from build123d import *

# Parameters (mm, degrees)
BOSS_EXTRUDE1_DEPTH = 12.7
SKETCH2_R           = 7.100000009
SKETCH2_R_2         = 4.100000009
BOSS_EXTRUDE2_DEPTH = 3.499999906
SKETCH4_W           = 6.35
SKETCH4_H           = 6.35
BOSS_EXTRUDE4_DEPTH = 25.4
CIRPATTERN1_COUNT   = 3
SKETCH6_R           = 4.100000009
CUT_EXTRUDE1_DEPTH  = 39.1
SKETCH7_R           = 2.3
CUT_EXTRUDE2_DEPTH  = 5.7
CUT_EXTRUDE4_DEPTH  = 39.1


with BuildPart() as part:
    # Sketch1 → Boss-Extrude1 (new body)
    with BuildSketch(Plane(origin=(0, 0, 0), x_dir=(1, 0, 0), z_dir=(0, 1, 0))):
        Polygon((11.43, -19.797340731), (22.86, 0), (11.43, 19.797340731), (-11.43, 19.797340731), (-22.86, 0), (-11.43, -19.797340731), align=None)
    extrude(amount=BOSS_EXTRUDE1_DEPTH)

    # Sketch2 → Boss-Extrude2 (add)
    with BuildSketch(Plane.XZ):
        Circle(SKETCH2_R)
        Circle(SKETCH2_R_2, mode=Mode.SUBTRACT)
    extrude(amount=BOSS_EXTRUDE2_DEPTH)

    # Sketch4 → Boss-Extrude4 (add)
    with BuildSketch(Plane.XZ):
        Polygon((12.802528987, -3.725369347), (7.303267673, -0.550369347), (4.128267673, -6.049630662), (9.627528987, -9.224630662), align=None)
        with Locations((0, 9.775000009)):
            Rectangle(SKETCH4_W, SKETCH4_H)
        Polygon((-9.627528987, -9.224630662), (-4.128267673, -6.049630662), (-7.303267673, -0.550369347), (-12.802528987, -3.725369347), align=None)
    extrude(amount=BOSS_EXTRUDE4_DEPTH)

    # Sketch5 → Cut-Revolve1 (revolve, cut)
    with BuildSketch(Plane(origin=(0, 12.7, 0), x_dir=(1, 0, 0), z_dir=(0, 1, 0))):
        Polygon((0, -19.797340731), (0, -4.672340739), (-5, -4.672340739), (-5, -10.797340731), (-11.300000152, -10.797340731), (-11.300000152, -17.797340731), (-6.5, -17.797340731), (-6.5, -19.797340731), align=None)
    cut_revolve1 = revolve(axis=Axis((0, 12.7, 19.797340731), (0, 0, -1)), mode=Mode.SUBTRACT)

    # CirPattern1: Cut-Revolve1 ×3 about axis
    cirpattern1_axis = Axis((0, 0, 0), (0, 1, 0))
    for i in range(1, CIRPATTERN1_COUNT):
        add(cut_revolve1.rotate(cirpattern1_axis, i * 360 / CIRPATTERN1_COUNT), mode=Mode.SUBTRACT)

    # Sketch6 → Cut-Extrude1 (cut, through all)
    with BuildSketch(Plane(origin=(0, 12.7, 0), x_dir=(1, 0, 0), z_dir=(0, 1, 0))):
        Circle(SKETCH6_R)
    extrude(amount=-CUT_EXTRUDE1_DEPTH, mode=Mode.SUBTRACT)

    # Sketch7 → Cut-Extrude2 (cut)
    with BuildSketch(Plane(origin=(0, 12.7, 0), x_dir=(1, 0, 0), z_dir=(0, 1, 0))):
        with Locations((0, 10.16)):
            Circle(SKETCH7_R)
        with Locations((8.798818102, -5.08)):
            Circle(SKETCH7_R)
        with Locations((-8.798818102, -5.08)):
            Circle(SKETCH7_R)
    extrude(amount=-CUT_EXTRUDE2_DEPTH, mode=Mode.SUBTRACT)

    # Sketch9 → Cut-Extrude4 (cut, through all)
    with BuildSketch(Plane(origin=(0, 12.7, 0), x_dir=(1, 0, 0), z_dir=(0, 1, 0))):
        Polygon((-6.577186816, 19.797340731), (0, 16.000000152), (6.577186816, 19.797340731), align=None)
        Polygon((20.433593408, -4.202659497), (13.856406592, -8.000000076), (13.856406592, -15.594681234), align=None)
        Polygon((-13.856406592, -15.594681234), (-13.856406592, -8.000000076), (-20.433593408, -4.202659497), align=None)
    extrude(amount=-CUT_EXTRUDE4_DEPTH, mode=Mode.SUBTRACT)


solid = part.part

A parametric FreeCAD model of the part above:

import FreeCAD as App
import Part
import Sketcher
Q = App.Units.Quantity


def add_polygon(sketch, points):
    """Adds a closed chain of lines whose ends are joined by coincident constraints."""
    first, n = sketch.GeometryCount, len(points)
    for a, b in zip(points, points[1:] + points[:1]):
        sketch.addGeometry(Part.LineSegment(App.Vector(*a, 0), App.Vector(*b, 0)), False)
    for i in range(n):
        sketch.addConstraint(Sketcher.Constraint("Coincident", first + i, 2, first + (i + 1) % n, 1))

doc = App.newDocument("Part")
body = doc.addObject("PartDesign::Body", "Body")

sketch1 = body.newObject("Sketcher::SketchObject", "Sketch")
sketch1.AttachmentSupport = (doc.getObject("XZ_Plane"), [""])
sketch1.MapMode = "FlatFace"
add_polygon(sketch1, [(11, 20), (23, 0), (11, -20), (-11, -20), (-23, 0), (-11, 20)])
sketch1.addConstraint(Sketcher.Constraint("Horizontal", 2))
sketch1.addConstraint(Sketcher.Constraint("Horizontal", 5))
sketch1.addConstraint(Sketcher.Constraint("Symmetric", 0, 2, 3, 2, -1, 1))
sketch1.addConstraint(Sketcher.Constraint("Symmetric", 1, 2, 4, 2, -1, 1))
sketch1.addConstraint(Sketcher.Constraint("PointOnObject", 0, 2, -1))
sketch1.addConstraint(Sketcher.Constraint("Parallel", 0, 3))
sketch1.addConstraint(Sketcher.Constraint("Vertical", 2, 2, 4, 2))
sketch1.addConstraint(Sketcher.Constraint("Angle", 0, Q("-60 deg")))
sketch1.addConstraint(Sketcher.Constraint("DistanceX", 2, 2, 2, 1, 22.86))
sketch1.addConstraint(Sketcher.Constraint("Distance", 0, 22.86))
pad1 = body.newObject("PartDesign::Pad", "Pad")
pad1.Profile = sketch1
pad1.Length = 12.7
pad1.Reversed = True

sketch2 = body.newObject("Sketcher::SketchObject", "Sketch001")
sketch2.AttachmentSupport = (doc.getObject("XZ_Plane"), [""])
sketch2.MapMode = "FlatFace"
sketch2.addGeometry(Part.Circle(App.Vector(0, 0, 0), App.Vector(0, 0, 1), 7.1), False)
sketch2.addGeometry(Part.Circle(App.Vector(0, 0, 0), App.Vector(0, 0, 1), 4.1), False)
sketch2.addConstraint(Sketcher.Constraint("Coincident", 0, 3, -1, 1))
sketch2.addConstraint(Sketcher.Constraint("Coincident", 1, 3, -1, 1))
sketch2.addConstraint(Sketcher.Constraint("Diameter", 0, 14.2))
sketch2.addConstraint(Sketcher.Constraint("Diameter", 1, 8.2))
pad2 = body.newObject("PartDesign::Pad", "Pad001")
pad2.Profile = sketch2
pad2.Length = 3.5

sketch3 = body.newObject("Sketcher::SketchObject", "Sketch002")
sketch3.AttachmentSupport = (doc.getObject("XZ_Plane"), [""])
sketch3.MapMode = "FlatFace"
add_polygon(sketch3, [(13, -4), (7, -1), (4, -6), (10, -9)])
add_polygon(sketch3, [(-3, 13), (-3, 7), (3, 7), (3, 13)])
add_polygon(sketch3, [(-10, -9), (-4, -6), (-7, -1), (-13, -4)])
sketch3.addConstraint(Sketcher.Constraint("Vertical", 4))
sketch3.addConstraint(Sketcher.Constraint("Horizontal", 5))
sketch3.addConstraint(Sketcher.Constraint("Vertical", 6))
sketch3.addConstraint(Sketcher.Constraint("Horizontal", 7))
sketch3.addConstraint(Sketcher.Constraint("Symmetric", 1, 2, 8, 2, -2))
sketch3.addConstraint(Sketcher.Constraint("Symmetric", 0, 2, 9, 2, -2))
sketch3.addConstraint(Sketcher.Constraint("Symmetric", 3, 2, 10, 2, -2))
sketch3.addConstraint(Sketcher.Constraint("Symmetric", 2, 2, 11, 2, -2))
sketch3.addConstraint(Sketcher.Constraint("Perpendicular", 0, 1))
sketch3.addConstraint(Sketcher.Constraint("Perpendicular", 1, 2))
sketch3.addConstraint(Sketcher.Constraint("Perpendicular", 2, 3))
sketch3.addConstraint(Sketcher.Constraint("Equal", 7, 4))
sketch3.addConstraint(Sketcher.Constraint("Equal", 0, 1))
sketch3.addConstraint(Sketcher.Constraint("Angle", 0, Q("150 deg")))
sketch3.addConstraint(Sketcher.Constraint("DistanceX", 5, 1, 5, 2, 6.35))
sketch3.addConstraint(Sketcher.Constraint("DistanceY", -1, 1, 4, 2, 6.6))
sketch3.addConstraint(Sketcher.Constraint("Distance", 0, 6.35))
sketch3.addConstraint(Sketcher.Constraint("DistanceX", 4, 2, -1, 1, 3.175))
sketch3.addConstraint(Sketcher.Constraint("DistanceY", 0, 2, -1, 1, 0.550369))
sketch3.addConstraint(Sketcher.Constraint("DistanceX", -1, 1, 2, 2, 9.627529))
pad3 = body.newObject("PartDesign::Pad", "Pad002")
pad3.Profile = sketch3
pad3.Length = 25.4

sketch4 = body.newObject("Sketcher::SketchObject", "Sketch003")
sketch4.AttachmentSupport = (doc.getObject("XZ_Plane"), [""])
sketch4.MapMode = "FlatFace"
sketch4.AttachmentOffset = App.Placement(App.Vector(0, 0, -12.7), App.Rotation())
add_polygon(sketch4, [(0, 19.8), (0, 4.7), (-5, 4.7), (-5, 10.8), (-11.3, 10.8), (-11.3, 17.8), (-6.5, 17.8), (-6.5, 19.8)])
sketch4.addConstraint(Sketcher.Constraint("Vertical", 0))
sketch4.addConstraint(Sketcher.Constraint("Horizontal", 1))
sketch4.addConstraint(Sketcher.Constraint("Vertical", 2))
sketch4.addConstraint(Sketcher.Constraint("Horizontal", 3))
sketch4.addConstraint(Sketcher.Constraint("Vertical", 4))
sketch4.addConstraint(Sketcher.Constraint("Horizontal", 5))
sketch4.addConstraint(Sketcher.Constraint("Vertical", 6))
sketch4.addConstraint(Sketcher.Constraint("Horizontal", 7))
sketch4.addConstraint(Sketcher.Constraint("PointOnObject", 0, 2, -2))
sketch4.addConstraint(Sketcher.Constraint("DistanceX", 1, 2, 1, 1, 5.0))
sketch4.addConstraint(Sketcher.Constraint("DistanceY", 4, 1, 4, 2, 7.0))
sketch4.addConstraint(Sketcher.Constraint("DistanceY", 6, 1, 6, 2, 2.0))
sketch4.addConstraint(Sketcher.Constraint("DistanceX", 3, 2, 3, 1, 6.3))
sketch4.addConstraint(Sketcher.Constraint("DistanceX", 5, 1, 5, 2, 4.8))
sketch4.addConstraint(Sketcher.Constraint("DistanceY", 0, 2, 0, 1, 15.125))
sketch4.addConstraint(Sketcher.Constraint("DistanceY", -1, 1, 0, 2, 4.672341))
groove = body.newObject("PartDesign::Groove", "Groove")
groove.Profile = sketch4
groove.ReferenceAxis = (sketch4, ["V_Axis"])
groove.Angle = 360
doc.recompute()

polarpattern = body.newObject("PartDesign::PolarPattern", "PolarPattern")
polarpattern.Originals = [groove]
polarpattern.Axis = (doc.getObject("Y_Axis"), [""])
polarpattern.Angle = 360
polarpattern.Occurrences = 3
body.Tip = polarpattern

sketch5 = body.newObject("Sketcher::SketchObject", "Sketch004")
sketch5.AttachmentSupport = (doc.getObject("XZ_Plane"), [""])
sketch5.MapMode = "FlatFace"
sketch5.AttachmentOffset = App.Placement(App.Vector(0, 0, -12.7), App.Rotation())
sketch5.addGeometry(Part.Circle(App.Vector(0, 0, 0), App.Vector(0, 0, 1), 4.1), False)
sketch5.addConstraint(Sketcher.Constraint("Coincident", 0, 3, -1, 1))
sketch5.addConstraint(Sketcher.Constraint("Diameter", 0, 8.2))
pocket1 = body.newObject("PartDesign::Pocket", "Pocket")
pocket1.Profile = sketch5
pocket1.Type = "ThroughAll"
pocket1.Reversed = True

sketch6 = body.newObject("Sketcher::SketchObject", "Sketch005")
sketch6.AttachmentSupport = (doc.getObject("XZ_Plane"), [""])
sketch6.MapMode = "FlatFace"
sketch6.AttachmentOffset = App.Placement(App.Vector(0, 0, -12.7), App.Rotation())
sketch6.addGeometry(Part.Circle(App.Vector(0, -10.2, 0), App.Vector(0, 0, 1), 2.3), False)
sketch6.addGeometry(Part.Circle(App.Vector(8.8, 5.1, 0), App.Vector(0, 0, 1), 2.3), False)
sketch6.addGeometry(Part.Circle(App.Vector(-8.8, 5.1, 0), App.Vector(0, 0, 1), 2.3), False)
sketch6.addConstraint(Sketcher.Constraint("Equal", 0, 1))
sketch6.addConstraint(Sketcher.Constraint("Equal", 1, 2))
sketch6.addConstraint(Sketcher.Constraint("Symmetric", 1, 3, 2, 3, -2))
sketch6.addConstraint(Sketcher.Constraint("PointOnObject", 0, 3, -2))
sketch6.addConstraint(Sketcher.Constraint("Diameter", 0, 4.6))
sketch6.addConstraint(Sketcher.Constraint("DistanceY", 0, 3, -1, 1, 10.16))
sketch6.addConstraint(Sketcher.Constraint("DistanceY", -1, 1, 1, 3, 5.08))
sketch6.addConstraint(Sketcher.Constraint("DistanceX", -1, 1, 1, 3, 8.798818))
pocket2 = body.newObject("PartDesign::Pocket", "Pocket001")
pocket2.Profile = sketch6
pocket2.Length = 5.7
pocket2.Reversed = True

sketch7 = body.newObject("Sketcher::SketchObject", "Sketch006")
sketch7.AttachmentSupport = (doc.getObject("XZ_Plane"), [""])
sketch7.MapMode = "FlatFace"
sketch7.AttachmentOffset = App.Placement(App.Vector(0, 0, -12.7), App.Rotation())
add_polygon(sketch7, [(-7, -20), (0, -16), (7, -20)])
add_polygon(sketch7, [(20, 4), (14, 8), (14, 16)])
add_polygon(sketch7, [(-14, 16), (-14, 8), (-20, 4)])
sketch7.addConstraint(Sketcher.Constraint("Horizontal", 2))
sketch7.addConstraint(Sketcher.Constraint("Vertical", 4))
sketch7.addConstraint(Sketcher.Constraint("Vertical", 6))
sketch7.addConstraint(Sketcher.Constraint("Symmetric", 3, 2, 6, 2, -2))
sketch7.addConstraint(Sketcher.Constraint("Symmetric", 5, 2, 7, 2, -2))
sketch7.addConstraint(Sketcher.Constraint("PointOnObject", 0, 2, -2))
sketch7.addConstraint(Sketcher.Constraint("Parallel", 1, 3))
sketch7.addConstraint(Sketcher.Constraint("Perpendicular", 0, 5))
sketch7.addConstraint(Sketcher.Constraint("Perpendicular", 5, 7))
sketch7.addConstraint(Sketcher.Constraint("Perpendicular", 3, 8))
sketch7.addConstraint(Sketcher.Constraint("Equal", 1, 3))
sketch7.addConstraint(Sketcher.Constraint("Angle", 0, Q("30 deg")))
sketch7.addConstraint(Sketcher.Constraint("DistanceY", 0, 2, -1, 1, 16.0))
sketch7.addConstraint(Sketcher.Constraint("DistanceY", -1, 1, 3, 2, 8.0))
sketch7.addConstraint(Sketcher.Constraint("DistanceX", 6, 2, 5, 2, 34.29))
sketch7.addConstraint(Sketcher.Constraint("DistanceY", 4, 1, 4, 2, 7.594681))
pocket3 = body.newObject("PartDesign::Pocket", "Pocket002")
pocket3.Profile = sketch7
pocket3.Type = "ThroughAll"
pocket3.Reversed = True

doc.recompute()
